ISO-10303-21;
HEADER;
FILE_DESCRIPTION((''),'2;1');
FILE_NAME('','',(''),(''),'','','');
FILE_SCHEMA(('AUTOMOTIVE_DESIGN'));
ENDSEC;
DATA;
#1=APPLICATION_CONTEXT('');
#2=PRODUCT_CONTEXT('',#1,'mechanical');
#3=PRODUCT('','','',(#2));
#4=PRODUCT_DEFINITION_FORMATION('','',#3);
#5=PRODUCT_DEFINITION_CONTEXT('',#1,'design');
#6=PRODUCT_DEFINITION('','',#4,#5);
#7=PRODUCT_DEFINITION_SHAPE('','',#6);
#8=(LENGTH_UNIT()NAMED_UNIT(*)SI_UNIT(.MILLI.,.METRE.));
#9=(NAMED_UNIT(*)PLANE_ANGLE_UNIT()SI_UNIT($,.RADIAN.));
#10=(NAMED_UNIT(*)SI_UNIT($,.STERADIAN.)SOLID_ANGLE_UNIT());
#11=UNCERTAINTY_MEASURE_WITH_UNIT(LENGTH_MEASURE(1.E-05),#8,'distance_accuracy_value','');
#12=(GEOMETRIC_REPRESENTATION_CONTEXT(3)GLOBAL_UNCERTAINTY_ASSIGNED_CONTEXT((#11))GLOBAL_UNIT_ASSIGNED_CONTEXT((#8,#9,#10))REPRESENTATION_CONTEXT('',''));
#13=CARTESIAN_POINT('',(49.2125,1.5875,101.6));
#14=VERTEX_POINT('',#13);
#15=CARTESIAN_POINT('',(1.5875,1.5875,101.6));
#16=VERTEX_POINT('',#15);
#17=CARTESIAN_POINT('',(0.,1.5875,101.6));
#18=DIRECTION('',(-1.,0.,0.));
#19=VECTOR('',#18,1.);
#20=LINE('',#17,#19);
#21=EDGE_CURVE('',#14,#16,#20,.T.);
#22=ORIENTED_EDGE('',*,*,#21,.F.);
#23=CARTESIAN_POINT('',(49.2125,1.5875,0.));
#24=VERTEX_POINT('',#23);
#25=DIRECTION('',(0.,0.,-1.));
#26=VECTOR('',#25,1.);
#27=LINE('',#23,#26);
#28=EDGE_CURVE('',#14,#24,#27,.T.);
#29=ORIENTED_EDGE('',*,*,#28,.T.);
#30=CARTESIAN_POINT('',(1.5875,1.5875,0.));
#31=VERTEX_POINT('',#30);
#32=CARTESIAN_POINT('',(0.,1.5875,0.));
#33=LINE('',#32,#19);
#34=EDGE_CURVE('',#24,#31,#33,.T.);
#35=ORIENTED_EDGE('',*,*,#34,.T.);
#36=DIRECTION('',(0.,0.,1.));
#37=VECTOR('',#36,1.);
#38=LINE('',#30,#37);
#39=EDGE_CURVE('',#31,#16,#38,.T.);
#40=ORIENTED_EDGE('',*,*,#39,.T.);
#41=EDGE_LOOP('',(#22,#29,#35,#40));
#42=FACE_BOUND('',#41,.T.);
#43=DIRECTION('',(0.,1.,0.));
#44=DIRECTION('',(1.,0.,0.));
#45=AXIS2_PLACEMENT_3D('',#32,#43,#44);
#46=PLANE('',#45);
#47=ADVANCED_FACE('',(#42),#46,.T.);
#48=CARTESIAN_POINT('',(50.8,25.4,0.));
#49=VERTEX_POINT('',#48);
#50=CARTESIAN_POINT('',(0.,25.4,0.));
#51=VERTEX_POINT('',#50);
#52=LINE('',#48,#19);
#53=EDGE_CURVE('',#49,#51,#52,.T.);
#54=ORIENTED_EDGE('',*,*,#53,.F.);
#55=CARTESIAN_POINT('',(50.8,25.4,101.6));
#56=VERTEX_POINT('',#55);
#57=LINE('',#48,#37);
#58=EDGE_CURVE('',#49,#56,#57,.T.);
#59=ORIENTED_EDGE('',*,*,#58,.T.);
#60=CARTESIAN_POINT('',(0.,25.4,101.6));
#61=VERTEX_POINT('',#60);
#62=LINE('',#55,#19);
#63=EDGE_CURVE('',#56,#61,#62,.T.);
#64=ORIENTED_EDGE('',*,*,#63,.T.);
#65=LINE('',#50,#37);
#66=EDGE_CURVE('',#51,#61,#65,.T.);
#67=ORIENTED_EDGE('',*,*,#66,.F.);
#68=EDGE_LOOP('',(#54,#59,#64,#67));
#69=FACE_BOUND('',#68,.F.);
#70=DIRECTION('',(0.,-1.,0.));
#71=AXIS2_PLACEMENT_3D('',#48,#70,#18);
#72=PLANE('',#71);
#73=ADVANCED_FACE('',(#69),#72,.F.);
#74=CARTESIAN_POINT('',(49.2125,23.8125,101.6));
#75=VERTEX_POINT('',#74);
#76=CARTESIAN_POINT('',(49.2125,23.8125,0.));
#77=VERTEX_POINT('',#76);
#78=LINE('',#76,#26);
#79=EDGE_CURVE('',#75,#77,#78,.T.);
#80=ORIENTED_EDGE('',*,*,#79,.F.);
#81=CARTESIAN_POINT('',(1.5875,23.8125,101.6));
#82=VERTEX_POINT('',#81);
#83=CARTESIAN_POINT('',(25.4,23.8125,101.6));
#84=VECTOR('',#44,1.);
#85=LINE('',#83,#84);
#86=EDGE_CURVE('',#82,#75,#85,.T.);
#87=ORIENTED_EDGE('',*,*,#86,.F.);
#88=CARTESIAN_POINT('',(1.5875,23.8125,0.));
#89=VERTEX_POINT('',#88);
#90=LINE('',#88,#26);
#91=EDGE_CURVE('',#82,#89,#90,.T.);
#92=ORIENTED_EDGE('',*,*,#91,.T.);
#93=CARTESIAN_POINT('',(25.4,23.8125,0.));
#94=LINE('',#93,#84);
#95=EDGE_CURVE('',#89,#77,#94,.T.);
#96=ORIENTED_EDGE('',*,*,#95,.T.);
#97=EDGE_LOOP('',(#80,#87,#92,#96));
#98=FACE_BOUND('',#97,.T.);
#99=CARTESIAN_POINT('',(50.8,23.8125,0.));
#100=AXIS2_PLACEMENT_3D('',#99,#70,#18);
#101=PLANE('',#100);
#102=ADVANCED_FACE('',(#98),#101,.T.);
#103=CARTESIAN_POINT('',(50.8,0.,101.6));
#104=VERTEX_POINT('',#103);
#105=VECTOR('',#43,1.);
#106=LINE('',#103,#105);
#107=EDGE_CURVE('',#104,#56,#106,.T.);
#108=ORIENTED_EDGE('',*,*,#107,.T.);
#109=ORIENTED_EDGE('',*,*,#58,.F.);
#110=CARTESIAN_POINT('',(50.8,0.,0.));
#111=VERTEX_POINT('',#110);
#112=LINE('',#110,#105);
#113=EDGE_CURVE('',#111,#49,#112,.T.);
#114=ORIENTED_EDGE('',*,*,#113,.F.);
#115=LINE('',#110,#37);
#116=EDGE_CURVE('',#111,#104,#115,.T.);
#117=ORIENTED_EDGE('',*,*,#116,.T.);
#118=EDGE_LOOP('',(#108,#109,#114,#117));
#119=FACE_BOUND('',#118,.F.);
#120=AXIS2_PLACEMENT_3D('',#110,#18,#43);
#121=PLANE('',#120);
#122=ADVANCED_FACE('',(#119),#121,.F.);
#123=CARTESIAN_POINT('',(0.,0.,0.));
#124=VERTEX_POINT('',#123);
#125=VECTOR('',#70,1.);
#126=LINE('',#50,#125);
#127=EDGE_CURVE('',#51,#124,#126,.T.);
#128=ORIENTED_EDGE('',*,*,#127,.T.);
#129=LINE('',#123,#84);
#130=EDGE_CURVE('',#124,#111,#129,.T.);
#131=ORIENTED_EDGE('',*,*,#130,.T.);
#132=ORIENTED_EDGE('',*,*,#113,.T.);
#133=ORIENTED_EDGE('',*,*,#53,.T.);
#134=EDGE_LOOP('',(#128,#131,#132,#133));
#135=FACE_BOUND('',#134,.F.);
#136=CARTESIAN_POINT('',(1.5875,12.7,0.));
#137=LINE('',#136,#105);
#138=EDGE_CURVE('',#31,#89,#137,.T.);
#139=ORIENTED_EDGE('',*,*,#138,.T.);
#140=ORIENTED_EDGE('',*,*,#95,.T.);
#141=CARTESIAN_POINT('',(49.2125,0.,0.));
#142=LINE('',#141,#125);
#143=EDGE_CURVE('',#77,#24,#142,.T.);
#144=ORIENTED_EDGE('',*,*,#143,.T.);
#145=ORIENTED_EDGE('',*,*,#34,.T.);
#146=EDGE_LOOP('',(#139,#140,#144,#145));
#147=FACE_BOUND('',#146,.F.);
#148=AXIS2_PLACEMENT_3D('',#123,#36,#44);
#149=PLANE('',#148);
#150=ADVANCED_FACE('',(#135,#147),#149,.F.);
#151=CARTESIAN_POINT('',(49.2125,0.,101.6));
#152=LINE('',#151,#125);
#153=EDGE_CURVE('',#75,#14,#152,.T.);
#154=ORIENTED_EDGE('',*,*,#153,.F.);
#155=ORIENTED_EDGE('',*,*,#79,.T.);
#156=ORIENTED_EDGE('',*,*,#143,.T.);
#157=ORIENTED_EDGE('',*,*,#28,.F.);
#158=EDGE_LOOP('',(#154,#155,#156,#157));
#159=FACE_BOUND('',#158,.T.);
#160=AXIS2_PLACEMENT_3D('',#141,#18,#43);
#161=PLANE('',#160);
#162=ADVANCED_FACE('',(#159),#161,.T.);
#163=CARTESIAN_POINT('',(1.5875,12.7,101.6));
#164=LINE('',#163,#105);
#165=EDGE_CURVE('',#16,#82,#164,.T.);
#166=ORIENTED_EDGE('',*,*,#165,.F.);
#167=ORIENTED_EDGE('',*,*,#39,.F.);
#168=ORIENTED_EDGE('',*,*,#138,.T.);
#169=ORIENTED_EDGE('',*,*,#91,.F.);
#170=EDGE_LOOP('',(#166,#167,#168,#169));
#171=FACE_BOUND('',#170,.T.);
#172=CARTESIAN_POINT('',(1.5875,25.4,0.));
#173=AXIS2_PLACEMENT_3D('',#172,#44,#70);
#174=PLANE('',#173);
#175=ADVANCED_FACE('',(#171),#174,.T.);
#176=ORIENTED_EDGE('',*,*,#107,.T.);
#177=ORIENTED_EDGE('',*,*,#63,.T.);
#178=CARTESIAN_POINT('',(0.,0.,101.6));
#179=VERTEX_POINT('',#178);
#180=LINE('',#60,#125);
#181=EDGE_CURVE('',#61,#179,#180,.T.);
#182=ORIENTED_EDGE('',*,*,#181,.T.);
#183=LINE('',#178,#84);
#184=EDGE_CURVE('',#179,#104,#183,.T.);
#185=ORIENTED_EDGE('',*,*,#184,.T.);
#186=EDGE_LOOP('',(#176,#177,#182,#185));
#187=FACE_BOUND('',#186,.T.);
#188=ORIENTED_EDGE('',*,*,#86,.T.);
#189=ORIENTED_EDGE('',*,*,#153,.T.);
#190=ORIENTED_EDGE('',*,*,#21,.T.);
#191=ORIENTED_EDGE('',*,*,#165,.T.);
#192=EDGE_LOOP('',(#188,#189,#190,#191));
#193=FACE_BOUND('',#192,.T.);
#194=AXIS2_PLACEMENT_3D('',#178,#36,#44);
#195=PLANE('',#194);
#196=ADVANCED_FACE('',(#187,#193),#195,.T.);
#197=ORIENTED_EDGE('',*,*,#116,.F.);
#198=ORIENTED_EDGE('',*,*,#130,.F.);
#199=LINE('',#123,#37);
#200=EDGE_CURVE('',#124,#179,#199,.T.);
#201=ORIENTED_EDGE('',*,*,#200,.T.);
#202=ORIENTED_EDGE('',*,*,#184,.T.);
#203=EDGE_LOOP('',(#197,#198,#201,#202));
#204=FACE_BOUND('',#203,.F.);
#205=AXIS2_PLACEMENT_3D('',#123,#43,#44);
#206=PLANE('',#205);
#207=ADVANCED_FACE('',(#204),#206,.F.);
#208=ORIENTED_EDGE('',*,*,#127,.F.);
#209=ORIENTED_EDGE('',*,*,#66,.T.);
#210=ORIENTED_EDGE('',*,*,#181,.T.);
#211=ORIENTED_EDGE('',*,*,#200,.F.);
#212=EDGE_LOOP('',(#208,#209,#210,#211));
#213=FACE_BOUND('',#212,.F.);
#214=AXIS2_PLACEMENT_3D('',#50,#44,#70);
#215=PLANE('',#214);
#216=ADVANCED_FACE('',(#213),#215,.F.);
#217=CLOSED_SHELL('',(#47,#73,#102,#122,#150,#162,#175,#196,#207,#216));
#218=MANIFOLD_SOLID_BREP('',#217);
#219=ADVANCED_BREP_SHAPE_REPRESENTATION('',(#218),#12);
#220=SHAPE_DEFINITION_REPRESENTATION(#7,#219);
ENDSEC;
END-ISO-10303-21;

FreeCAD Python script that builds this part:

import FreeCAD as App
import Part
import Sketcher
from FreeCAD import Vector
Q = App.Units.Quantity


def faces_at(feature, points):
    """Names of the faces that lie closest to the given points."""
    faces = feature.Shape.Faces
    near = lambda p: min(range(len(faces)), key=lambda i: faces[i].distToShape(Part.Vertex(*p))[0])
    return sorted({f"Face{near(p) + 1}" for p in points})

doc = App.newDocument("Part")
body = doc.addObject("PartDesign::Body", "Body")

# Sketch on XY plane
sketch1 = doc.addObject("Sketcher::SketchObject", "Sketch")
body.addObject(sketch1)
sketch1.AttachmentSupport = (doc.XY_Plane, [""])
sketch1.MapMode = "FlatFace"
sketch1.addGeometry([
    Part.LineSegment(Vector(0, 25, 0), Vector(0, 0, 0)),
    Part.LineSegment(Vector(0, 0, 0), Vector(51, 0, 0)),
    Part.LineSegment(Vector(51, 0, 0), Vector(51, 25, 0)),
    Part.LineSegment(Vector(51, 25, 0), Vector(0, 25, 0)),
], False)
sketch1.addConstraint([
    Sketcher.Constraint("Coincident", 0, 2, 1, 1),
    Sketcher.Constraint("Coincident", 1, 2, 2, 1),
    Sketcher.Constraint("Coincident", 2, 2, 3, 1),
    Sketcher.Constraint("Coincident", 3, 2, 0, 1),
    Sketcher.Constraint("Vertical", 0),
    Sketcher.Constraint("Horizontal", 1),
    Sketcher.Constraint("Vertical", 2),
    Sketcher.Constraint("Horizontal", 3),
    Sketcher.Constraint("Coincident", 0, 2, -1, 1),
    Sketcher.Constraint("DistanceX", 1, 1, 1, 2, Q("2 in")),
    Sketcher.Constraint("DistanceY", 0, 2, 0, 1, Q("1 in")),
])
pad1 = doc.addObject("PartDesign::Pad", "Pad")
body.addObject(pad1)
pad1.Profile = sketch1
pad1.Length = Q("4 in")
doc.recompute()

thickness = doc.addObject("PartDesign::Thickness", "Thickness")
body.addObject(thickness)
thickness.Base = (pad1, faces_at(pad1, [(16.933, 8.467, 0), (16.933, 8.467, 101.6)]))
thickness.Value = Q("0.0625 in")
thickness.Reversed = True
thickness.Join = "Intersection"

doc.recompute()
